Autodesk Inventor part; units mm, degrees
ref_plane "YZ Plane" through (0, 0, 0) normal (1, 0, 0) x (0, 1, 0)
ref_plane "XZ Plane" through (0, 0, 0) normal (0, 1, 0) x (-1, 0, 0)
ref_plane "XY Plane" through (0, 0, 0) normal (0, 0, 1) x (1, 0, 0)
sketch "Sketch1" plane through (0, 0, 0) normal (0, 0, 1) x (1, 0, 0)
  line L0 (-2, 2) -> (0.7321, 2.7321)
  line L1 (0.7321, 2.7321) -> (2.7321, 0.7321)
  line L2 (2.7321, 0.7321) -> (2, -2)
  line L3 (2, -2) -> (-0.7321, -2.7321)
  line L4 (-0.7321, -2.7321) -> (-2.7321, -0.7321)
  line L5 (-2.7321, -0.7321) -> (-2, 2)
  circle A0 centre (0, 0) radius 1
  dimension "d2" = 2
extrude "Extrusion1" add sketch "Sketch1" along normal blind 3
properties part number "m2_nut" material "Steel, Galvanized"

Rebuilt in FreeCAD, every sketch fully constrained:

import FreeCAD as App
import Part
import Sketcher

V = App.Vector
Q = App.Units.Quantity

doc = App.newDocument("Part")
body = doc.addObject("PartDesign::Body", "Body")

# Sketch on XY plane
sketch1 = body.newObject("Sketcher::SketchObject", "Sketch")
sketch1.AttachmentSupport = (doc.getObject("XY_Plane"), [""])
sketch1.MapMode = "FlatFace"
sketch1.addGeometry([
    Part.LineSegment(V(0.7, 2.7, 0), V(-2, 2, 0)),  # 0
    Part.LineSegment(V(-2, 2, 0), V(-2.7, -0.7, 0)),  # 1
    Part.LineSegment(V(-2.7, -0.7, 0), V(-0.7, -2.7, 0)),  # 2
    Part.LineSegment(V(-0.7, -2.7, 0), V(2, -2, 0)),  # 3
    Part.LineSegment(V(2, -2, 0), V(2.7, 0.7, 0)),  # 4
    Part.LineSegment(V(2.7, 0.7, 0), V(0.7, 2.7, 0)),  # 5
    Part.Circle(V(0, 0, 0), V(0, 0, 1), 1),  # 6
], False)
sketch1.addConstraint([
    Sketcher.Constraint("Coincident", 0, 2, 1, 1),
    Sketcher.Constraint("Coincident", 1, 2, 2, 1),
    Sketcher.Constraint("Coincident", 2, 2, 3, 1),
    Sketcher.Constraint("Coincident", 3, 2, 4, 1),
    Sketcher.Constraint("Coincident", 4, 2, 5, 1),
    Sketcher.Constraint("Coincident", 5, 2, 0, 1),
    Sketcher.Constraint("Coincident", 6, 3, -1, 1),
    Sketcher.Constraint("Symmetric", 0, 2, 3, 2, -1, 1),
    Sketcher.Constraint("Symmetric", 1, 2, 4, 2, -1, 1),
    Sketcher.Constraint("Symmetric", 2, 2, 5, 2, -1, 1),
    Sketcher.Constraint("Equal", 0, 1),
    Sketcher.Constraint("Equal", 1, 2),
    Sketcher.Constraint("Diameter", 6, Q("2 mm")),
    Sketcher.Constraint("DistanceX", 0, 2, -1, 1, Q("2 mm")),
    Sketcher.Constraint("DistanceY", -1, 1, 0, 2, Q("2 mm")),
    Sketcher.Constraint("DistanceX", 1, 2, 2, 2, Q("2 mm")),
    Sketcher.Constraint("DistanceY", 2, 2, 1, 2, Q("2 mm")),
])
pad1 = body.newObject("PartDesign::Pad", "Pad")
pad1.Profile = sketch1
pad1.Length = 3

doc.recompute()
